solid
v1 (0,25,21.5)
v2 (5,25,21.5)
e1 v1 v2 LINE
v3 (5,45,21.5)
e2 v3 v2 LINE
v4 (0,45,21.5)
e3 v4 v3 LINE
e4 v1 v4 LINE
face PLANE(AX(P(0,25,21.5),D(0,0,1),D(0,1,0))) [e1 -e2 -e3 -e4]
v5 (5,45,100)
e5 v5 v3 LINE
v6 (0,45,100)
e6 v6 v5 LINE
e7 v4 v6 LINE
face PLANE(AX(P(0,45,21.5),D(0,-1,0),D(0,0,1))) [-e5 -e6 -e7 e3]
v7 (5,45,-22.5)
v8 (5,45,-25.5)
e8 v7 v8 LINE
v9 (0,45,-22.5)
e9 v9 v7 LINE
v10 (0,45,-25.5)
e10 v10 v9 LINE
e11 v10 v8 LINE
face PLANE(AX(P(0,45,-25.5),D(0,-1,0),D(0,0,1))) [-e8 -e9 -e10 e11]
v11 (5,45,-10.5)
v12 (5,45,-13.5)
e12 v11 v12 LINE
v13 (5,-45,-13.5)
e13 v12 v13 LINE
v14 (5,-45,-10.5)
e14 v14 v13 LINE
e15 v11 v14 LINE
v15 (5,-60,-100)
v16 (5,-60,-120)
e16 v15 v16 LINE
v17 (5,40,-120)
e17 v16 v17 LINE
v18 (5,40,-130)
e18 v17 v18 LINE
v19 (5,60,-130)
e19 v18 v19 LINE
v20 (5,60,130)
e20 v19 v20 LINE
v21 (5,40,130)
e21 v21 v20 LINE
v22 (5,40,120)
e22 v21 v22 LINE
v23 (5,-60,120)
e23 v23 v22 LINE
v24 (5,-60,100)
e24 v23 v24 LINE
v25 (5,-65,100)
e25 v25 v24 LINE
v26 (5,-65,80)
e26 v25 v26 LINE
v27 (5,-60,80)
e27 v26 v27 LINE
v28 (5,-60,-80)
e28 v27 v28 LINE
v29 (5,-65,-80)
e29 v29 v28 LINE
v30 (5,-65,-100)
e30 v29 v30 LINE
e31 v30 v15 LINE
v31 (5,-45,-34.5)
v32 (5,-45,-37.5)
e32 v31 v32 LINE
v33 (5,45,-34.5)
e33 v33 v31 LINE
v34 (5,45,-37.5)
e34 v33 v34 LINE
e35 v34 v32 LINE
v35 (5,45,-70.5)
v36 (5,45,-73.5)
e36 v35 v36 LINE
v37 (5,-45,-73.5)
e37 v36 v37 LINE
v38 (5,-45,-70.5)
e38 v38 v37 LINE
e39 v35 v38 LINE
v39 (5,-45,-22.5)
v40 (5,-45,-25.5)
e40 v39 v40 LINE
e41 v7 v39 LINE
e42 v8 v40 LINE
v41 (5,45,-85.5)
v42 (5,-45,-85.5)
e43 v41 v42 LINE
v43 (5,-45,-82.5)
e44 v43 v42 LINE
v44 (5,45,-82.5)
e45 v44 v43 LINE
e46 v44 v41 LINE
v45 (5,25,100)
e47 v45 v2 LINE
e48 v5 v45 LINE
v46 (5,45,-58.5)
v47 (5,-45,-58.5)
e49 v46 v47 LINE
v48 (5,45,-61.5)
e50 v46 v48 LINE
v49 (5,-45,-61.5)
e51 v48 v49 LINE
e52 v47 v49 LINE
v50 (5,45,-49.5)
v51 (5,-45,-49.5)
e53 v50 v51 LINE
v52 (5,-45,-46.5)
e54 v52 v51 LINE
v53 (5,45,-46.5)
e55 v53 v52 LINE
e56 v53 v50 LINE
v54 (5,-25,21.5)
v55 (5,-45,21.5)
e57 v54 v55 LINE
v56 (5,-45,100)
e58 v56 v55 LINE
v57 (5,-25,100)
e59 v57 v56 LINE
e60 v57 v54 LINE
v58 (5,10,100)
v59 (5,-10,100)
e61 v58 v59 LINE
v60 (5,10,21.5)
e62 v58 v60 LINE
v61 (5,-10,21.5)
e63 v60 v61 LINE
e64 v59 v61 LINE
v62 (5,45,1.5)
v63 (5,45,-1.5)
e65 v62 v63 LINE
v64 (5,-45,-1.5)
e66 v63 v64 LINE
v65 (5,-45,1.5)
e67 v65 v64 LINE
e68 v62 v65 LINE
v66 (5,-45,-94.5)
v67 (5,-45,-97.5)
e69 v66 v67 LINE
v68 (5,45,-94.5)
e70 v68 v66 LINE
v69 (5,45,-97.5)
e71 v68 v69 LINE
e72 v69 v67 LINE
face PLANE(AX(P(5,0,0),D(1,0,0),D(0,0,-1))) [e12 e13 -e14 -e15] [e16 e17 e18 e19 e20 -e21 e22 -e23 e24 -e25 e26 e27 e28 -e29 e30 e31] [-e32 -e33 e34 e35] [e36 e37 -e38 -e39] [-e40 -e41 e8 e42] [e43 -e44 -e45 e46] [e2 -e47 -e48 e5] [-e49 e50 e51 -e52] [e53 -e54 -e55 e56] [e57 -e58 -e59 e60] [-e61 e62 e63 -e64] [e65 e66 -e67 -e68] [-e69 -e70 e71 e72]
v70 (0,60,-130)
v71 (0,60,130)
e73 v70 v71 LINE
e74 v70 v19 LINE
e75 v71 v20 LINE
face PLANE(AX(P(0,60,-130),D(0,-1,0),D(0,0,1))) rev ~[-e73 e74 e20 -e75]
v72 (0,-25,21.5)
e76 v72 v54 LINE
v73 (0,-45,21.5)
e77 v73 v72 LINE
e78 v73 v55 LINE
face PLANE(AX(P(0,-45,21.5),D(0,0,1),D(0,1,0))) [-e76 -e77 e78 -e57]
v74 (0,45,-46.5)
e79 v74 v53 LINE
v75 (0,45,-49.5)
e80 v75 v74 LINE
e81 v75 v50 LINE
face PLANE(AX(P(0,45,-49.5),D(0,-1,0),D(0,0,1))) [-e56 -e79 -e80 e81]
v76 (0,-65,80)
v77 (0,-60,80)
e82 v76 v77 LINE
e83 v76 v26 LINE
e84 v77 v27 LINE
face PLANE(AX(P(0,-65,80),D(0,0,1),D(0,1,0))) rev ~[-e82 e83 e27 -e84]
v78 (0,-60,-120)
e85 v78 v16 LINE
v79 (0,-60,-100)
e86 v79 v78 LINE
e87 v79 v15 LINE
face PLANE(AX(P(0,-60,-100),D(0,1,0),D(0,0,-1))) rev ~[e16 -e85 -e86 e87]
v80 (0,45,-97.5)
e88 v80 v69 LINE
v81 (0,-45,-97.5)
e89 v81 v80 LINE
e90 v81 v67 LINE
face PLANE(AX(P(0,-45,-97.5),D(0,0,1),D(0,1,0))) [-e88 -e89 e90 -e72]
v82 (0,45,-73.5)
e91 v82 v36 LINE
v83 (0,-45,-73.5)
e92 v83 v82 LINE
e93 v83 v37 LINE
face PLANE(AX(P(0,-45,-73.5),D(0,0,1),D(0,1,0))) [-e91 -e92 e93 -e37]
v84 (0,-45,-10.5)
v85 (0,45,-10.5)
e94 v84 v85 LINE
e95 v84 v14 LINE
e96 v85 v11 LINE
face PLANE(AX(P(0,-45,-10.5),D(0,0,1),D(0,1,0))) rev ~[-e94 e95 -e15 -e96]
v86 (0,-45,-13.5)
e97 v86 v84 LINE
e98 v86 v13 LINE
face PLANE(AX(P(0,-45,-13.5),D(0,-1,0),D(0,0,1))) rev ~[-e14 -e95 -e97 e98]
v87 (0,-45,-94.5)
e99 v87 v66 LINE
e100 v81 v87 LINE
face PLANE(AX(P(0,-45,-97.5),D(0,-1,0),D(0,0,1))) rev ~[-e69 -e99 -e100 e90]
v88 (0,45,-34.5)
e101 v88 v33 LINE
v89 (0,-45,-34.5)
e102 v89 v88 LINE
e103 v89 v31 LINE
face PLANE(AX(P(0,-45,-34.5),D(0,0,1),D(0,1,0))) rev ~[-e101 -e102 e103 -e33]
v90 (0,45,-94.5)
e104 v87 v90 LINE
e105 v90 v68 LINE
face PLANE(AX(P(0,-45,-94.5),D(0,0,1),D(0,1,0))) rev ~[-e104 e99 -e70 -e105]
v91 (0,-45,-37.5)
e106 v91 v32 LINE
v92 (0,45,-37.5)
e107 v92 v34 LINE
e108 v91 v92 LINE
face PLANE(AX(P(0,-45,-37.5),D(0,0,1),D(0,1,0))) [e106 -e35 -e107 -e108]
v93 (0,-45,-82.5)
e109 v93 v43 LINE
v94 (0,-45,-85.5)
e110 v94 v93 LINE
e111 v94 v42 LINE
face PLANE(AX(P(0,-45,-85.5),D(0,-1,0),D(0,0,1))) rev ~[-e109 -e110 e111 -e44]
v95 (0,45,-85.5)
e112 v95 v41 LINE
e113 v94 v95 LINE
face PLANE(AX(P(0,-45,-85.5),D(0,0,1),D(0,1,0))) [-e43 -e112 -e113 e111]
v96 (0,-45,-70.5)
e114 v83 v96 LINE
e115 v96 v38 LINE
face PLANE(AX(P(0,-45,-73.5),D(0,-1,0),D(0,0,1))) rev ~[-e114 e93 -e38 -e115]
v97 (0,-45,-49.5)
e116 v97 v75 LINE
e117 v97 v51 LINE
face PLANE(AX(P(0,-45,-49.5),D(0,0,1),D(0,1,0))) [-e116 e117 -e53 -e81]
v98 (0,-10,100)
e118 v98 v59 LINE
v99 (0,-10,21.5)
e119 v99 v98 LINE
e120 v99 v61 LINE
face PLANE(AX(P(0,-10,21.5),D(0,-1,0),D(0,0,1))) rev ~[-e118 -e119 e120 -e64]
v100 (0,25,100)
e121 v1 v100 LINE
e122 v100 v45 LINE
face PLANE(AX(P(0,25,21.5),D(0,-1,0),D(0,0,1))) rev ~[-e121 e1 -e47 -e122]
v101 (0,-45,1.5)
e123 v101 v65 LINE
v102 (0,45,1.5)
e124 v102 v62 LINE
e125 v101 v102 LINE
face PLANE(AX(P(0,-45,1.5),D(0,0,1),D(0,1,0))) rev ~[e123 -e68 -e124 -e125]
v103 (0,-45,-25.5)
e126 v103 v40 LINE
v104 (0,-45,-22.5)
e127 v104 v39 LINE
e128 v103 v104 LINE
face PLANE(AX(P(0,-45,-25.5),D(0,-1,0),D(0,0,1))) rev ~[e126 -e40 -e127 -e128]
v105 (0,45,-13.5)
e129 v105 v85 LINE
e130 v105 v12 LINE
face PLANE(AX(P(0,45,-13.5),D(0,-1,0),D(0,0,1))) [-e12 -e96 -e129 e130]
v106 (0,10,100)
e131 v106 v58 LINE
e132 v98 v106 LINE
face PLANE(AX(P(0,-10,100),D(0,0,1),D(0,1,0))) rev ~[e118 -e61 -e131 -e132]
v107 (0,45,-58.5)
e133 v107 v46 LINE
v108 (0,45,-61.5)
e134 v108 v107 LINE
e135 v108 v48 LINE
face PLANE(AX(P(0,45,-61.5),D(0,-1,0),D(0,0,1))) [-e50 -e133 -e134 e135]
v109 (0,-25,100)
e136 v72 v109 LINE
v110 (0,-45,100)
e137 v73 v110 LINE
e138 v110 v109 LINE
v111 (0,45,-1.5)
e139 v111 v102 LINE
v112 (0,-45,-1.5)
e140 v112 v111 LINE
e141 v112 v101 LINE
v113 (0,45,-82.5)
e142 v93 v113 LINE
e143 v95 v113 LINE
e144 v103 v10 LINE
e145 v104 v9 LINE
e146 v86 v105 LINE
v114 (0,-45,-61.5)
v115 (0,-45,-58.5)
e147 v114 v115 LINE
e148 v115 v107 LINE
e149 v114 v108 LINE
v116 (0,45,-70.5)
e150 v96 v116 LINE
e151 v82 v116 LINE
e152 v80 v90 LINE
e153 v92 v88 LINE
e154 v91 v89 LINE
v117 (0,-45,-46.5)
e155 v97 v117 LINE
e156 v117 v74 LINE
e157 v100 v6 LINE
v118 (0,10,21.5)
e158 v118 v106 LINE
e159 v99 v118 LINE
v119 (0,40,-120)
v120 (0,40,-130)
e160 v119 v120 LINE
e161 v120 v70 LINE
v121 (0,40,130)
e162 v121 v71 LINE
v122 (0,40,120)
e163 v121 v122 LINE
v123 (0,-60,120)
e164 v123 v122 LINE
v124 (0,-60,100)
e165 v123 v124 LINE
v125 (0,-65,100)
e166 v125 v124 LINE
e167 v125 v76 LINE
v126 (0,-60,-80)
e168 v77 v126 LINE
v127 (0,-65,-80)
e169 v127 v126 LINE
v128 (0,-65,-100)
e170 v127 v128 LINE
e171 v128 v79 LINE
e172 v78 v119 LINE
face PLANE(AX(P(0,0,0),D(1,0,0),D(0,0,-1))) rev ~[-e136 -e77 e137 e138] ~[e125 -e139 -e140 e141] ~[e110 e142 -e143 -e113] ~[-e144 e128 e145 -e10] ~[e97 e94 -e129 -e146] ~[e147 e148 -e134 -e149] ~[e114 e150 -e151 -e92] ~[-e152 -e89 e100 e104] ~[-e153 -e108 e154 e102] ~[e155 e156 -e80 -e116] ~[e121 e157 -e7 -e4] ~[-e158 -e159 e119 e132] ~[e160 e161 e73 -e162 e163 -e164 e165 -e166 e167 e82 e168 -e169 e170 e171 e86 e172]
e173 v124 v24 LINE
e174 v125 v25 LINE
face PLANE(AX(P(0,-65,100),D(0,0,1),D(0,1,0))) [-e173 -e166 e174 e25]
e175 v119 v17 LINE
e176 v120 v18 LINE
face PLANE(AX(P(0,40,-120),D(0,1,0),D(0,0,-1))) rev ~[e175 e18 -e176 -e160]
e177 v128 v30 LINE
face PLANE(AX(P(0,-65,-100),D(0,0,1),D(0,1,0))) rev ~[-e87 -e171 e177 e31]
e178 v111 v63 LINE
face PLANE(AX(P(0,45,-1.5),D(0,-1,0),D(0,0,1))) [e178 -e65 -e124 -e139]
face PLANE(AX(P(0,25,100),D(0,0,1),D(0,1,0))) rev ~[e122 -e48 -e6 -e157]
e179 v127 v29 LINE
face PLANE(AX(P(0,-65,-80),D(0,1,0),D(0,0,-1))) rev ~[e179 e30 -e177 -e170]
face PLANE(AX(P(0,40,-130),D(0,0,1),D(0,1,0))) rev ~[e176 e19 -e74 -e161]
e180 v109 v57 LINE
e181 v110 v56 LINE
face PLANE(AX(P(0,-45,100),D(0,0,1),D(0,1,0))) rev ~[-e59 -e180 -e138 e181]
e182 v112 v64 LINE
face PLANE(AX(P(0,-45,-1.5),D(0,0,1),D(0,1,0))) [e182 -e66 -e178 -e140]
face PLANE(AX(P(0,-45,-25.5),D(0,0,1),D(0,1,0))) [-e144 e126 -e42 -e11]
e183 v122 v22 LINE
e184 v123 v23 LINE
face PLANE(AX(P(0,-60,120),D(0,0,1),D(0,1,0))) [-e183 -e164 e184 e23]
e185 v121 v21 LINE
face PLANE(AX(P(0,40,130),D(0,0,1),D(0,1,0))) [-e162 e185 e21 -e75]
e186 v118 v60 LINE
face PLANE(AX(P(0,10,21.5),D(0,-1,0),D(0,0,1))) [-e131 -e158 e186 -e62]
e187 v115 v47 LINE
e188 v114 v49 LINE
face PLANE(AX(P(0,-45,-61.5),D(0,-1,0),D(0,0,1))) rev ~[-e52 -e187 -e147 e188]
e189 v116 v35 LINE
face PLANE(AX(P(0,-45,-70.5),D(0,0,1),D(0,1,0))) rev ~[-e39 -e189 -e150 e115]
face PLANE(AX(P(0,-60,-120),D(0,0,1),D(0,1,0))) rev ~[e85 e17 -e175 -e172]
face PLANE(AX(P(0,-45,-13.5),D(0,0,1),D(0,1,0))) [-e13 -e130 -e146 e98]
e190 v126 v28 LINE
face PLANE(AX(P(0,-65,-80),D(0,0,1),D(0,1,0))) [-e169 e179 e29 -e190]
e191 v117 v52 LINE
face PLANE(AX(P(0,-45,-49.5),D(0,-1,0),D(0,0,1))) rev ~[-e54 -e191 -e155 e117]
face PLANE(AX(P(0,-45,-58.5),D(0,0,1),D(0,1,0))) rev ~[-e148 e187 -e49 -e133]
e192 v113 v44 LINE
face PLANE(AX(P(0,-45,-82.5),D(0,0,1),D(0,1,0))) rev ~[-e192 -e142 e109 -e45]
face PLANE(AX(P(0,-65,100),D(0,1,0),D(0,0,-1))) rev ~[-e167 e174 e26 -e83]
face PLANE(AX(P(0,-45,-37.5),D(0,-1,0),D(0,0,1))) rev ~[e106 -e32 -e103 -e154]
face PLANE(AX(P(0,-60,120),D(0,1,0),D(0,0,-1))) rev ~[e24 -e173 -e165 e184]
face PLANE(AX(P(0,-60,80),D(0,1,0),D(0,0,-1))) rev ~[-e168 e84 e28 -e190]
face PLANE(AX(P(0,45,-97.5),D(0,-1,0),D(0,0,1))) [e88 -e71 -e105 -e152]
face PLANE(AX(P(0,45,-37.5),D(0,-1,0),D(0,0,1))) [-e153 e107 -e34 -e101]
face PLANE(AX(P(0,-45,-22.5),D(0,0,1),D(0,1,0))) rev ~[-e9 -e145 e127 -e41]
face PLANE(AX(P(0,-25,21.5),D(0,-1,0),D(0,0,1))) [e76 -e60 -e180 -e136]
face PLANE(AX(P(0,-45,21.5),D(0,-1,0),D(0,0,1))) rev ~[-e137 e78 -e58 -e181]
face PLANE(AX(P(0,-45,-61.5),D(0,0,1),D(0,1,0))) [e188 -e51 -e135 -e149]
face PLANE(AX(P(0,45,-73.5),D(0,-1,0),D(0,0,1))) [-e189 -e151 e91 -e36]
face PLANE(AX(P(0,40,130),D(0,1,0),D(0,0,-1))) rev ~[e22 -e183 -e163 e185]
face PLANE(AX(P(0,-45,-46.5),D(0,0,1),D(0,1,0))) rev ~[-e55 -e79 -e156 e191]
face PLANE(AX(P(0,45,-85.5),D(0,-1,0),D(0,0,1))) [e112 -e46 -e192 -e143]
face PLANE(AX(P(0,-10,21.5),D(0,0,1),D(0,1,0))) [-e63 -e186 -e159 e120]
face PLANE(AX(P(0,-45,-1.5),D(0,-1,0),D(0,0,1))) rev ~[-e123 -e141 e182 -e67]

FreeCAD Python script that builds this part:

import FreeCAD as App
import Part
import Sketcher
Q = App.Units.Quantity

doc = App.newDocument("Part")
body = doc.addObject("PartDesign::Body", "Body")

# Sketch on YZ plane
sketch1 = doc.addObject("Sketcher::SketchObject", "Sketch")
body.addObject(sketch1)
sketch1.AttachmentSupport = (doc.YZ_Plane, [""])
sketch1.MapMode = "FlatFace"
sketch1.addGeometry([
    Part.LineSegment(App.Vector(40, 120, 0), App.Vector(-60, 120, 0)),  # 0
    Part.LineSegment(App.Vector(-60, 120, 0), App.Vector(-60, 100, 0)),  # 1
    Part.LineSegment(App.Vector(-60, 100, 0), App.Vector(-65, 100, 0)),  # 2
    Part.LineSegment(App.Vector(-65, 100, 0), App.Vector(-65, 80, 0)),  # 3
    Part.LineSegment(App.Vector(-65, 80, 0), App.Vector(-60, 80, 0)),  # 4
    Part.LineSegment(App.Vector(-60, 80, 0), App.Vector(-60, -80, 0)),  # 5
    Part.LineSegment(App.Vector(-60, -80, 0), App.Vector(-65, -80, 0)),  # 6
    Part.LineSegment(App.Vector(-65, -80, 0), App.Vector(-65, -100, 0)),  # 7
    Part.LineSegment(App.Vector(-65, -100, 0), App.Vector(-60, -100, 0)),  # 8
    Part.LineSegment(App.Vector(-60, -100, 0), App.Vector(-60, -120, 0)),  # 9
    Part.LineSegment(App.Vector(-60, -120, 0), App.Vector(40, -120, 0)),  # 10
    Part.LineSegment(App.Vector(40, -120, 0), App.Vector(40, -130, 0)),  # 11
    Part.LineSegment(App.Vector(40, -130, 0), App.Vector(60, -130, 0)),  # 12
    Part.LineSegment(App.Vector(60, -130, 0), App.Vector(60, 130, 0)),  # 13
    Part.LineSegment(App.Vector(60, 130, 0), App.Vector(40, 130, 0)),  # 14
    Part.LineSegment(App.Vector(40, 130, 0), App.Vector(40, 120, 0)),  # 15
], False)
sketch1.addConstraint([
    Sketcher.Constraint("Coincident", 0, 2, 1, 1),
    Sketcher.Constraint("Coincident", 1, 2, 2, 1),
    Sketcher.Constraint("Coincident", 2, 2, 3, 1),
    Sketcher.Constraint("Coincident", 3, 2, 4, 1),
    Sketcher.Constraint("Coincident", 4, 2, 5, 1),
    Sketcher.Constraint("Coincident", 5, 2, 6, 1),
    Sketcher.Constraint("Coincident", 6, 2, 7, 1),
    Sketcher.Constraint("Coincident", 7, 2, 8, 1),
    Sketcher.Constraint("Coincident", 8, 2, 9, 1),
    Sketcher.Constraint("Coincident", 9, 2, 10, 1),
    Sketcher.Constraint("Coincident", 10, 2, 11, 1),
    Sketcher.Constraint("Coincident", 11, 2, 12, 1),
    Sketcher.Constraint("Coincident", 12, 2, 13, 1),
    Sketcher.Constraint("Coincident", 13, 2, 14, 1),
    Sketcher.Constraint("Coincident", 14, 2, 15, 1),
    Sketcher.Constraint("Coincident", 15, 2, 0, 1),
    Sketcher.Constraint("Horizontal", 0),
    Sketcher.Constraint("Vertical", 1),
    Sketcher.Constraint("Horizontal", 2),
    Sketcher.Constraint("Vertical", 3),
    Sketcher.Constraint("Horizontal", 4),
    Sketcher.Constraint("Vertical", 5),
    Sketcher.Constraint("Horizontal", 6),
    Sketcher.Constraint("Vertical", 7),
    Sketcher.Constraint("Horizontal", 8),
    Sketcher.Constraint("Vertical", 9),
    Sketcher.Constraint("Horizontal", 10),
    Sketcher.Constraint("Vertical", 11),
    Sketcher.Constraint("Horizontal", 12),
    Sketcher.Constraint("Vertical", 13),
    Sketcher.Constraint("Horizontal", 14),
    Sketcher.Constraint("Vertical", 15),
    Sketcher.Constraint("Symmetric", 3, 2, 6, 2, -1),
    Sketcher.Constraint("Symmetric", 1, 2, 8, 2, -1),
    Sketcher.Constraint("Symmetric", 11, 2, 14, 2, -1),
    Sketcher.Constraint("Vertical", 1, 2, 4, 2),
    Sketcher.Constraint("Equal", 14, 1),
    Sketcher.Constraint("Equal", 1, 3),
    Sketcher.Constraint("Equal", 7, 9),
    Sketcher.Constraint("DistanceX", 0, 2, 0, 1, Q("100 mm")),
    Sketcher.Constraint("DistanceX", 2, 2, 2, 1, Q("5 mm")),
    Sketcher.Constraint("DistanceX", 12, 1, 12, 2, Q("20 mm")),
    Sketcher.Constraint("DistanceY", 5, 2, 5, 1, Q("160 mm")),
    Sketcher.Constraint("DistanceY", 11, 2, 11, 1, Q("10 mm")),
    Sketcher.Constraint("DistanceX", 0, 2, -1, 1, Q("60 mm")),
])
pad1 = doc.addObject("PartDesign::Pad", "Pad")
body.addObject(pad1)
pad1.Profile = sketch1
pad1.Length = 5

# Sketch on YZ plane
sketch2 = doc.addObject("Sketcher::SketchObject", "Sketch001")
body.addObject(sketch2)
sketch2.AttachmentSupport = (doc.YZ_Plane, [""])
sketch2.MapMode = "FlatFace"
sketch2.addGeometry([
    Part.LineSegment(App.Vector(45, -1.5, 0), App.Vector(-45, -1.5, 0)),
    Part.LineSegment(App.Vector(-45, -1.5, 0), App.Vector(-45, 1.5, 0)),
    Part.LineSegment(App.Vector(-45, 1.5, 0), App.Vector(45, 1.5, 0)),
    Part.LineSegment(App.Vector(45, 1.5, 0), App.Vector(45, -1.5, 0)),
], False)
sketch2.addConstraint([
    Sketcher.Constraint("Coincident", 0, 2, 1, 1),
    Sketcher.Constraint("Coincident", 1, 2, 2, 1),
    Sketcher.Constraint("Coincident", 2, 2, 3, 1),
    Sketcher.Constraint("Coincident", 3, 2, 0, 1),
    Sketcher.Constraint("Horizontal", 0),
    Sketcher.Constraint("Vertical", 1),
    Sketcher.Constraint("Horizontal", 2),
    Sketcher.Constraint("Vertical", 3),
    Sketcher.Constraint("Symmetric", 0, 2, 2, 2, -1, 1),
    Sketcher.Constraint("DistanceX", 0, 2, 0, 1, Q("90 mm")),
    Sketcher.Constraint("DistanceY", 1, 1, 1, 2, Q("3 mm")),
])
pocket1 = doc.addObject("PartDesign::Pocket", "Pocket")
body.addObject(pocket1)
pocket1.Profile = sketch2
pocket1.Type = "ThroughAll"
pocket1.Reversed = True
doc.recompute()

linearpattern = doc.addObject("PartDesign::LinearPattern", "LinearPattern")
body.addObject(linearpattern)
linearpattern.Originals = [pocket1]
linearpattern.Direction = (doc.Z_Axis, [""])
linearpattern.Mode = "offset"
linearpattern.Offset = 12
linearpattern.Occurrences = 9
linearpattern.Reversed = True
body.Tip = linearpattern

# Sketch on YZ plane
sketch3 = doc.addObject("Sketcher::SketchObject", "Sketch002")
body.addObject(sketch3)
sketch3.AttachmentSupport = (doc.YZ_Plane, [""])
sketch3.MapMode = "FlatFace"
sketch3.addGeometry([
    Part.LineSegment(App.Vector(10, 21.5, 0), App.Vector(-10, 21.5, 0)),  # 0
    Part.LineSegment(App.Vector(-10, 21.5, 0), App.Vector(-10, 100, 0)),  # 1
    Part.LineSegment(App.Vector(-10, 100, 0), App.Vector(10, 100, 0)),  # 2
    Part.LineSegment(App.Vector(10, 100, 0), App.Vector(10, 21.5, 0)),  # 3
    Part.LineSegment(App.Vector(-25, 21.5, 0), App.Vector(-45, 21.5, 0)),  # 4
    Part.LineSegment(App.Vector(-45, 21.5, 0), App.Vector(-45, 100, 0)),  # 5
    Part.LineSegment(App.Vector(-45, 100, 0), App.Vector(-25, 100, 0)),  # 6
    Part.LineSegment(App.Vector(-25, 100, 0), App.Vector(-25, 21.5, 0)),  # 7
    Part.LineSegment(App.Vector(45, 21.5, 0), App.Vector(25, 21.5, 0)),  # 8
    Part.LineSegment(App.Vector(25, 21.5, 0), App.Vector(25, 100, 0)),  # 9
    Part.LineSegment(App.Vector(25, 100, 0), App.Vector(45, 100, 0)),  # 10
    Part.LineSegment(App.Vector(45, 100, 0), App.Vector(45, 21.5, 0)),  # 11
], False)
sketch3.addConstraint([
    Sketcher.Constraint("Coincident", 0, 2, 1, 1),
    Sketcher.Constraint("Coincident", 1, 2, 2, 1),
    Sketcher.Constraint("Coincident", 2, 2, 3, 1),
    Sketcher.Constraint("Coincident", 3, 2, 0, 1),
    Sketcher.Constraint("Coincident", 4, 2, 5, 1),
    Sketcher.Constraint("Coincident", 5, 2, 6, 1),
    Sketcher.Constraint("Coincident", 6, 2, 7, 1),
    Sketcher.Constraint("Coincident", 7, 2, 4, 1),
    Sketcher.Constraint("Coincident", 8, 2, 9, 1),
    Sketcher.Constraint("Coincident", 9, 2, 10, 1),
    Sketcher.Constraint("Coincident", 10, 2, 11, 1),
    Sketcher.Constraint("Coincident", 11, 2, 8, 1),
    Sketcher.Constraint("Horizontal", 0),
    Sketcher.Constraint("Vertical", 1),
    Sketcher.Constraint("Horizontal", 2),
    Sketcher.Constraint("Vertical", 3),
    Sketcher.Constraint("Horizontal", 4),
    Sketcher.Constraint("Vertical", 5),
    Sketcher.Constraint("Horizontal", 6),
    Sketcher.Constraint("Vertical", 7),
    Sketcher.Constraint("Horizontal", 8),
    Sketcher.Constraint("Vertical", 9),
    Sketcher.Constraint("Horizontal", 10),
    Sketcher.Constraint("Vertical", 11),
    Sketcher.Constraint("Symmetric", 7, 2, 8, 2, -2),
    Sketcher.Constraint("Symmetric", 5, 2, 10, 2, -2),
    Sketcher.Constraint("Horizontal", 3, 2, 4, 2),
    Sketcher.Constraint("Horizontal", 2, 2, 5, 2),
    Sketcher.Constraint("Equal", 2, 4),
    Sketcher.Constraint("DistanceX", 0, 2, 0, 1, Q("20 mm")),
    Sketcher.Constraint("DistanceY", 1, 1, 1, 2, Q("78.5 mm")),
    Sketcher.Constraint("DistanceX", 0, 2, -1, 1, Q("10 mm")),
    Sketcher.Constraint("DistanceY", -1, 1, 1, 2, Q("100 mm")),
    Sketcher.Constraint("DistanceX", 4, 2, -1, 1, Q("45 mm")),
])
pocket2 = doc.addObject("PartDesign::Pocket", "Pocket001")
body.addObject(pocket2)
pocket2.Profile = sketch3
pocket2.Type = "ThroughAll"
pocket2.Reversed = True

doc.recompute()
